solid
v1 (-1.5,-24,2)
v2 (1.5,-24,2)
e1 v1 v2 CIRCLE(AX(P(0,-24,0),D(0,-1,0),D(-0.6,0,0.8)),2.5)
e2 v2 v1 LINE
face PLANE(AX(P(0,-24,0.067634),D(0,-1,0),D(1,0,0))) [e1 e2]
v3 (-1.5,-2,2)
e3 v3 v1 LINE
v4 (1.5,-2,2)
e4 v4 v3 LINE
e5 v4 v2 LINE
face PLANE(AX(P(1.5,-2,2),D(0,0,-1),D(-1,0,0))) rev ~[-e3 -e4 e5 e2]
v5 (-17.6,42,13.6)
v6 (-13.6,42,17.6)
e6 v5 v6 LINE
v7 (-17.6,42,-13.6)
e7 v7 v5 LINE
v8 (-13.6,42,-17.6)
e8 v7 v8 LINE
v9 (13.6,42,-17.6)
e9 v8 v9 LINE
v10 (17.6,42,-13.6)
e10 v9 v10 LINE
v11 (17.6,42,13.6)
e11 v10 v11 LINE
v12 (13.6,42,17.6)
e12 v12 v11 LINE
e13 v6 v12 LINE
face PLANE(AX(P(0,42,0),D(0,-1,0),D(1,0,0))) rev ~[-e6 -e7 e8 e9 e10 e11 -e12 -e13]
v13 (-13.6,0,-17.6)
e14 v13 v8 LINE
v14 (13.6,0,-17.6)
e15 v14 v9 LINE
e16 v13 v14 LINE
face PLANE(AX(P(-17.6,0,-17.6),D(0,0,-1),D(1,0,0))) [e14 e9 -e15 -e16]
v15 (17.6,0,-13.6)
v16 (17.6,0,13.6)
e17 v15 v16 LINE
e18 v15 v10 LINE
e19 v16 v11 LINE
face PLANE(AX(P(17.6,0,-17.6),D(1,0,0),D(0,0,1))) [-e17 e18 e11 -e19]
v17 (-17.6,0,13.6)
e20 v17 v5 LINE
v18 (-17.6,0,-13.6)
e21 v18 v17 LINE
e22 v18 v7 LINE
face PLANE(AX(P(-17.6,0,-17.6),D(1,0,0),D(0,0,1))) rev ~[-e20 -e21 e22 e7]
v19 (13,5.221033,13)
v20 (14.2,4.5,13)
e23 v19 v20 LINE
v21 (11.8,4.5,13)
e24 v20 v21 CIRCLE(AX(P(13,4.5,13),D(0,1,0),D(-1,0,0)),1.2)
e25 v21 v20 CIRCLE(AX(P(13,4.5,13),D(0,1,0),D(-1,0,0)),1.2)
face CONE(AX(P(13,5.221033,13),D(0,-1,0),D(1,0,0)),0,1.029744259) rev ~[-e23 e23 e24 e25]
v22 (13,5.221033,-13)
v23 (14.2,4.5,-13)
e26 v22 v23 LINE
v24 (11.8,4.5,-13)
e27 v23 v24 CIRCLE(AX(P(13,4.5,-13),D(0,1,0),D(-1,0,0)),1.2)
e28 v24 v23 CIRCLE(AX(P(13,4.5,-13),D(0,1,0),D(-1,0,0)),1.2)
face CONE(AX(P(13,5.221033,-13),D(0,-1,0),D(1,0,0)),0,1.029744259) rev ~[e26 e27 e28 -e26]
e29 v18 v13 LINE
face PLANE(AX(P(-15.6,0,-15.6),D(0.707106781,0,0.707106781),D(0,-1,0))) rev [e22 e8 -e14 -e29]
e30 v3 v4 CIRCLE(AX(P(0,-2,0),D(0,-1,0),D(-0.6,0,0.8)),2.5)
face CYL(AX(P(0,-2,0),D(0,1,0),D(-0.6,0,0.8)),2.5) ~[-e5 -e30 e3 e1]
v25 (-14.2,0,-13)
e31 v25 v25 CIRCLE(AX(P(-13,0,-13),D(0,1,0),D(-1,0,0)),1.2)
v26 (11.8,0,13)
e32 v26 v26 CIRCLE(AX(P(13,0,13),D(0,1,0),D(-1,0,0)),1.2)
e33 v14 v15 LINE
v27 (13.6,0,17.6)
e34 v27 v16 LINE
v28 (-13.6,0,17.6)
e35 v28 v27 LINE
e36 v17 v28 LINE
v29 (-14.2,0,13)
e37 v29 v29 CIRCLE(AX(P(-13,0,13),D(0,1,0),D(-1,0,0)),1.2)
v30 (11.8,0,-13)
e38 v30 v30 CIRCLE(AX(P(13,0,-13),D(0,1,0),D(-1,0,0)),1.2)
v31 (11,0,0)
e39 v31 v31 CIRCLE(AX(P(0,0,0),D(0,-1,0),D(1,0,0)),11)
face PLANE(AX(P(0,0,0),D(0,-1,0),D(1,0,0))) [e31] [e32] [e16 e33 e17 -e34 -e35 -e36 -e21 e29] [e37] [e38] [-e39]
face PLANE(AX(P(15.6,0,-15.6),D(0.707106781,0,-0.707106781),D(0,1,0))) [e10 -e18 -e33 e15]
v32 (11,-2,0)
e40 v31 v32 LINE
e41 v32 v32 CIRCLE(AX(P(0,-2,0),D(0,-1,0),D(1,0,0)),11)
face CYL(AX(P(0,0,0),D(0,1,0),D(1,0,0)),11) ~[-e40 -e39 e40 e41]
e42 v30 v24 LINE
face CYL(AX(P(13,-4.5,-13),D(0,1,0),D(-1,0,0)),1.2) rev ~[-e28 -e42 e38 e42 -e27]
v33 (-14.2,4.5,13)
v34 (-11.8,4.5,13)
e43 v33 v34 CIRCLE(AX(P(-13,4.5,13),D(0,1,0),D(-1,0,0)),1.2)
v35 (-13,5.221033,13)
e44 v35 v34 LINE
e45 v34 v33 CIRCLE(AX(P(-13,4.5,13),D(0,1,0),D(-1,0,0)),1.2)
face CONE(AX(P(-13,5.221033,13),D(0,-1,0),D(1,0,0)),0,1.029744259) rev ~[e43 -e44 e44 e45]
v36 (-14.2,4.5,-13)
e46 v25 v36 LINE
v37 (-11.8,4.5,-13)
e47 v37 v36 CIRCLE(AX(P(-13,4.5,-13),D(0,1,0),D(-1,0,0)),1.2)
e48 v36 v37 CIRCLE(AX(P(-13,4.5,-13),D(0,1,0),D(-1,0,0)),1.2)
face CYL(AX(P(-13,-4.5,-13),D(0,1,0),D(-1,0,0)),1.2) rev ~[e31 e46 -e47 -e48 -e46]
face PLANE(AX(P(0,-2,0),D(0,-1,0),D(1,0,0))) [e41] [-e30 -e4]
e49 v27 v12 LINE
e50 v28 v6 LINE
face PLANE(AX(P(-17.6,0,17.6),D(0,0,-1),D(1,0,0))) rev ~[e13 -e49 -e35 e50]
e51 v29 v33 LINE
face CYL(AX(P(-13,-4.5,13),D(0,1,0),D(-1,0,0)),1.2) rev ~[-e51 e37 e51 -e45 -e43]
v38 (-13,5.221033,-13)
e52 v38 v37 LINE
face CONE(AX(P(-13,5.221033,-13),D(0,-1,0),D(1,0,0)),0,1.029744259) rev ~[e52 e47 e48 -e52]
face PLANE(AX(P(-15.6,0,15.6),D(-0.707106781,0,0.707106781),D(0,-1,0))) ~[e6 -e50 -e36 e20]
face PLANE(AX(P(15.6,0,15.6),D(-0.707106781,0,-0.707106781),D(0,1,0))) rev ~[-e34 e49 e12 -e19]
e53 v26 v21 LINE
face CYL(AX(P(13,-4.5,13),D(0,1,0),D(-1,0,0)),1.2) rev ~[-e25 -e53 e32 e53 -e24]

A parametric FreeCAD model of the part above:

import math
import FreeCAD as App
import Part
import Sketcher
from FreeCAD import Vector


def edges_at(feature, points):
    """Names of the edges that pass closest to the given points."""
    edges = feature.Shape.Edges
    near = lambda p: min(range(len(edges)), key=lambda i: edges[i].distToShape(Part.Vertex(*p))[0])
    return sorted({f"Edge{near(p) + 1}" for p in points})

doc = App.newDocument("Part")
body = doc.addObject("PartDesign::Body", "Body")

sketch1 = doc.addObject("Sketcher::SketchObject", "Sketch")
body.addObject(sketch1)
sketch1.AttachmentSupport = (doc.XZ_Plane, [""])
sketch1.MapMode = "FlatFace"
sketch1.addGeometry([
    Part.LineSegment(Vector(-18, 18, 0), Vector(-18, -18, 0)),
    Part.LineSegment(Vector(-18, -18, 0), Vector(18, -18, 0)),
    Part.LineSegment(Vector(18, -18, 0), Vector(18, 18, 0)),
    Part.LineSegment(Vector(18, 18, 0), Vector(-18, 18, 0)),
], False)
sketch1.addConstraint([
    Sketcher.Constraint("Coincident", 0, 2, 1, 1),
    Sketcher.Constraint("Coincident", 1, 2, 2, 1),
    Sketcher.Constraint("Coincident", 2, 2, 3, 1),
    Sketcher.Constraint("Coincident", 3, 2, 0, 1),
    Sketcher.Constraint("Vertical", 0),
    Sketcher.Constraint("Horizontal", 1),
    Sketcher.Constraint("Vertical", 2),
    Sketcher.Constraint("Horizontal", 3),
    Sketcher.Constraint("Symmetric", 0, 2, 2, 2, -1, 1),
    Sketcher.Constraint("Equal", 3, 0),
    Sketcher.Constraint("DistanceX", 1, 1, 1, 2, 35.2),
])
pad1 = doc.addObject("PartDesign::Pad", "Pad")
body.addObject(pad1)
pad1.Profile = sketch1
pad1.Length = 42
pad1.Reversed = True

sketch2 = doc.addObject("Sketcher::SketchObject", "Sketch001")
body.addObject(sketch2)
sketch2.AttachmentSupport = (doc.XZ_Plane, [""])
sketch2.MapMode = "FlatFace"
sketch2.addGeometry(Part.Circle(Vector(0, 0, 0), Vector(0, 0, 1), 11), False)
sketch2.addConstraint([
    Sketcher.Constraint("Coincident", 0, 3, -1, 1),
    Sketcher.Constraint("Diameter", 0, 22.0),
])
pad2 = doc.addObject("PartDesign::Pad", "Pad001")
body.addObject(pad2)
pad2.Profile = sketch2
pad2.Length = 2

sketch3 = doc.addObject("Sketcher::SketchObject", "Sketch002")
body.addObject(sketch3)
sketch3.AttachmentSupport = (doc.XZ_Plane, [""])
sketch3.MapMode = "FlatFace"
sketch3.AttachmentOffset = App.Placement(Vector(0, 0, 2), App.Rotation())
sketch3.addGeometry([
    Part.LineSegment(Vector(1.5, 2, 0), Vector(-1.5, 2, 0)),
    Part.ArcOfCircle(Part.Circle(Vector(0, 0, 0), Vector(0, 0, 1), 2.5), math.radians(127), math.radians(413)),
], False)
sketch3.addConstraint([
    Sketcher.Constraint("Coincident", 0, 1, 1, 2),
    Sketcher.Constraint("Coincident", 1, 1, 0, 2),
    Sketcher.Constraint("Horizontal", 0),
    Sketcher.Constraint("Coincident", 1, 3, -1, 1),
    Sketcher.Constraint("Radius", 1, 2.5),
    Sketcher.Constraint("DistanceX", 0, 2, 0, 1, 3.0),
])
pad3 = doc.addObject("PartDesign::Pad", "Pad002")
body.addObject(pad3)
pad3.Profile = sketch3
pad3.Length = 22

sketch4 = doc.addObject("Sketcher::SketchObject", "Sketch003")
body.addObject(sketch4)
sketch4.AttachmentSupport = (doc.XZ_Plane, [""])
sketch4.MapMode = "FlatFace"
sketch4.addGeometry([
    Part.Circle(Vector(-13, 13, 0), Vector(0, 0, 1), 1.2),
    Part.Circle(Vector(13, 13, 0), Vector(0, 0, 1), 1.2),
    Part.Circle(Vector(13, -13, 0), Vector(0, 0, 1), 1.2),
    Part.Circle(Vector(-13, -13, 0), Vector(0, 0, 1), 1.2),
], False)
sketch4.addConstraint([
    Sketcher.Constraint("Equal", 0, 1),
    Sketcher.Constraint("Equal", 1, 2),
    Sketcher.Constraint("Equal", 2, 3),
    Sketcher.Constraint("Symmetric", 0, 3, 2, 3, -1, 1),
    Sketcher.Constraint("Symmetric", 1, 3, 3, 3, -1, 1),
    Sketcher.Constraint("Symmetric", 0, 3, 1, 3, -2),
    Sketcher.Constraint("Diameter", 0, 2.4),
    Sketcher.Constraint("DistanceX", 0, 3, -1, 1, 13.0),
    Sketcher.Constraint("DistanceY", -1, 1, 0, 3, 13.0),
])
doc.recompute()
hole = doc.addObject("PartDesign::Hole", "Hole")
body.addObject(hole)
hole.Profile = sketch4
hole.ThreadType = "None"
hole.Diameter = 2.4
hole.DepthType = "Dimension"
hole.Depth = 4.5
hole.DrillPoint = "Angled"
hole.DrillPointAngle = 118
doc.recompute()

chamfer = doc.addObject("PartDesign::Chamfer", "Chamfer")
body.addObject(chamfer)
chamfer.Base = (hole, edges_at(hole, [
    (-17.6, 21, 17.6),
    (-17.6, 21, -17.6),
    (17.6, 21, -17.6),
    (17.6, 21, 17.6),
]))
chamfer.Size = 4

doc.recompute()
